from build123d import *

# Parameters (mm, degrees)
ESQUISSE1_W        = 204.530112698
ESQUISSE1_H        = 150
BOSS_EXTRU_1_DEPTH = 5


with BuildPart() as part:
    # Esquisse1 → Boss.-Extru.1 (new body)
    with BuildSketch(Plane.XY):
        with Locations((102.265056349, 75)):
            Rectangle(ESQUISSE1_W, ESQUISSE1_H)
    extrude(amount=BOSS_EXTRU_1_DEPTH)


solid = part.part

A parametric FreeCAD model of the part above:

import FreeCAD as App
import Part
import Sketcher

V = App.Vector
Q = App.Units.Quantity


def add_polygon(sketch, points):
    """Adds a closed chain of lines whose ends are joined by coincident constraints."""
    first, n = sketch.GeometryCount, len(points)
    for a, b in zip(points, points[1:] + points[:1]):
        sketch.addGeometry(Part.LineSegment(App.Vector(*a, 0), App.Vector(*b, 0)), False)
    for i in range(n):
        sketch.addConstraint(Sketcher.Constraint("Coincident", first + i, 2, first + (i + 1) % n, 1))

doc = App.newDocument("Part")
body = doc.addObject("PartDesign::Body", "Body")

# Sketch on XY plane
sketch1 = body.newObject("Sketcher::SketchObject", "Sketch")
sketch1.AttachmentSupport = (doc.getObject("XY_Plane"), [""])
sketch1.MapMode = "FlatFace"
add_polygon(sketch1, [(0, 150), (0, 0), (204.530113, 0), (204.530113, 150)])  # lines 0-3
sketch1.addConstraint(Sketcher.Constraint("Vertical", 0))
sketch1.addConstraint(Sketcher.Constraint("Horizontal", 1))
sketch1.addConstraint(Sketcher.Constraint("Vertical", 2))
sketch1.addConstraint(Sketcher.Constraint("Horizontal", 3))
sketch1.addConstraint(Sketcher.Constraint("Coincident", 0, 2, -1, 1))
sketch1.addConstraint(Sketcher.Constraint("DistanceY", 0, 2, 0, 1, Q("150 mm")))
sketch1.addConstraint(Sketcher.Constraint("DistanceX", 1, 1, 1, 2, Q("204.530113 mm")))
pad1 = body.newObject("PartDesign::Pad", "Pad")
pad1.Profile = sketch1
pad1.Length = 5

doc.recompute()
